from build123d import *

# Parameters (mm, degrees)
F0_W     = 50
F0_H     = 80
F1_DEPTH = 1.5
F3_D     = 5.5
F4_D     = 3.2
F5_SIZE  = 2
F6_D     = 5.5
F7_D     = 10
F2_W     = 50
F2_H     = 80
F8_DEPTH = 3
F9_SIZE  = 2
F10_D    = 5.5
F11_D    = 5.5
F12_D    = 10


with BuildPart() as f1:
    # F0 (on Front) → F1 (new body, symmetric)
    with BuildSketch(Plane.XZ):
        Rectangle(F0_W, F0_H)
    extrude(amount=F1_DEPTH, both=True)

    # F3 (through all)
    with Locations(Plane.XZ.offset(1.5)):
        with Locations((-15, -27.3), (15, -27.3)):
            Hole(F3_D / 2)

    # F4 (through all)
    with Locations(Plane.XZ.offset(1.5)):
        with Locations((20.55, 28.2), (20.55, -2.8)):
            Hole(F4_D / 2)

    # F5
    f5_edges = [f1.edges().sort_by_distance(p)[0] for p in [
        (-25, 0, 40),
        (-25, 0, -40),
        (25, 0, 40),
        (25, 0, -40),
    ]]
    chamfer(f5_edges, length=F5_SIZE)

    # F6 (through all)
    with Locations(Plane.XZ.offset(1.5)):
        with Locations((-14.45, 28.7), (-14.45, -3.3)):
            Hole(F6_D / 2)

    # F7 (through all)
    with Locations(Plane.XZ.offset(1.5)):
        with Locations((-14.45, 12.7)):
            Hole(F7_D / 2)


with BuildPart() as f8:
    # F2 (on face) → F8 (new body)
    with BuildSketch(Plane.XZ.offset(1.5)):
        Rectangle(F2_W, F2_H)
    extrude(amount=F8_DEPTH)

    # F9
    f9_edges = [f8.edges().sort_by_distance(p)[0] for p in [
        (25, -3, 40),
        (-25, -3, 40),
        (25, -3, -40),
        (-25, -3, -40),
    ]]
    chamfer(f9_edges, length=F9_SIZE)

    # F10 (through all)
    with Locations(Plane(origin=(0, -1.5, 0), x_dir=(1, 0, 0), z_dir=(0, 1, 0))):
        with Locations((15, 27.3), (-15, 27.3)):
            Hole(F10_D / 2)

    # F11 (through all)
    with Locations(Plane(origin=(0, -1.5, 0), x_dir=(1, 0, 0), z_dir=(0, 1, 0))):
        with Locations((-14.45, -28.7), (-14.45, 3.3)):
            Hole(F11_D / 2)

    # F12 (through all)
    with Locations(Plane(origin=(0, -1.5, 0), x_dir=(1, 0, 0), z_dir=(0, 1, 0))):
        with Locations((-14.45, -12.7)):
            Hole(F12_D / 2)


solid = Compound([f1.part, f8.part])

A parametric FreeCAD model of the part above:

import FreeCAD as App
import Part
import Sketcher
Q = App.Units.Quantity


def edges_at(feature, points):
    """Names of the edges that pass closest to the given points."""
    edges = feature.Shape.Edges
    near = lambda p: min(range(len(edges)), key=lambda i: edges[i].distToShape(Part.Vertex(*p))[0])
    return sorted({f"Edge{near(p) + 1}" for p in points})

doc = App.newDocument("Part")
body = doc.addObject("PartDesign::Body", "Body")

# Sketch on XZ plane
sketch1 = body.newObject("Sketcher::SketchObject", "Sketch")
sketch1.AttachmentSupport = (doc.getObject("XZ_Plane"), [""])
sketch1.MapMode = "FlatFace"
sketch1.addGeometry(Part.LineSegment(App.Vector(-25, 40, 0), App.Vector(-25, -40, 0)), False)
sketch1.addGeometry(Part.LineSegment(App.Vector(-25, -40, 0), App.Vector(25, -40, 0)), False)
sketch1.addGeometry(Part.LineSegment(App.Vector(25, -40, 0), App.Vector(25, 40, 0)), False)
sketch1.addGeometry(Part.LineSegment(App.Vector(25, 40, 0), App.Vector(-25, 40, 0)), False)
sketch1.addConstraint(Sketcher.Constraint("Coincident", 0, 2, 1, 1))
sketch1.addConstraint(Sketcher.Constraint("Coincident", 1, 2, 2, 1))
sketch1.addConstraint(Sketcher.Constraint("Coincident", 2, 2, 3, 1))
sketch1.addConstraint(Sketcher.Constraint("Coincident", 3, 2, 0, 1))
sketch1.addConstraint(Sketcher.Constraint("Vertical", 0))
sketch1.addConstraint(Sketcher.Constraint("Horizontal", 1))
sketch1.addConstraint(Sketcher.Constraint("Vertical", 2))
sketch1.addConstraint(Sketcher.Constraint("Horizontal", 3))
sketch1.addConstraint(Sketcher.Constraint("Symmetric", 0, 2, 2, 2, -1, 1))
sketch1.addConstraint(Sketcher.Constraint("DistanceX", 1, 1, 1, 2, Q("50 mm")))
sketch1.addConstraint(Sketcher.Constraint("DistanceY", 0, 2, 0, 1, Q("80 mm")))
pad1 = body.newObject("PartDesign::Pad", "Pad")
pad1.Profile = sketch1
pad1.Length = 3
pad1.Midplane = True

# Sketch on XZ plane
sketch2 = body.newObject("Sketcher::SketchObject", "Sketch001")
sketch2.AttachmentSupport = (doc.getObject("XZ_Plane"), [""])
sketch2.MapMode = "FlatFace"
sketch2.AttachmentOffset = App.Placement(App.Vector(0, 0, 1.5), App.Rotation())
sketch2.addGeometry(Part.Circle(App.Vector(-15, -27.3, 0), App.Vector(0, 0, 1), 2.8), False)
sketch2.addGeometry(Part.Circle(App.Vector(15, -27.3, 0), App.Vector(0, 0, 1), 2.8), False)
sketch2.addConstraint(Sketcher.Constraint("Equal", 0, 1))
sketch2.addConstraint(Sketcher.Constraint("Symmetric", 0, 3, 1, 3, -2))
sketch2.addConstraint(Sketcher.Constraint("Diameter", 0, Q("5.5 mm")))
sketch2.addConstraint(Sketcher.Constraint("DistanceX", 0, 3, -1, 1, Q("15 mm")))
sketch2.addConstraint(Sketcher.Constraint("DistanceY", 0, 3, -1, 1, Q("27.3 mm")))
doc.recompute()
hole = body.newObject("PartDesign::Hole", "Hole")
hole.Profile = sketch2
hole.ThreadType = "None"
hole.Diameter = 5.5
hole.DepthType = "ThroughAll"

# Sketch on XZ plane
sketch3 = body.newObject("Sketcher::SketchObject", "Sketch002")
sketch3.AttachmentSupport = (doc.getObject("XZ_Plane"), [""])
sketch3.MapMode = "FlatFace"
sketch3.AttachmentOffset = App.Placement(App.Vector(0, 0, 1.5), App.Rotation())
sketch3.addGeometry(Part.Circle(App.Vector(20.6, 28.2, 0), App.Vector(0, 0, 1), 1.6), False)
sketch3.addGeometry(Part.Circle(App.Vector(20.6, -2.8, 0), App.Vector(0, 0, 1), 1.6), False)
sketch3.addConstraint(Sketcher.Constraint("Equal", 0, 1))
sketch3.addConstraint(Sketcher.Constraint("Vertical", 0, 3, 1, 3))
sketch3.addConstraint(Sketcher.Constraint("Diameter", 0, Q("3.2 mm")))
sketch3.addConstraint(Sketcher.Constraint("DistanceY", 1, 3, 0, 3, Q("31 mm")))
sketch3.addConstraint(Sketcher.Constraint("DistanceY", -1, 1, 0, 3, Q("28.2 mm")))
sketch3.addConstraint(Sketcher.Constraint("DistanceX", -1, 1, 0, 3, Q("20.55 mm")))
doc.recompute()
hole2 = body.newObject("PartDesign::Hole", "Hole001")
hole2.Profile = sketch3
hole2.ThreadType = "None"
hole2.Diameter = 3.2
hole2.DepthType = "ThroughAll"
doc.recompute()

chamfer = body.newObject("PartDesign::Chamfer", "Chamfer")
chamfer.Base = (hole2, edges_at(hole2, [
    (-25, 0, 40),
    (-25, 0, -40),
    (25, 0, 40),
    (25, 0, -40),
]))
chamfer.Size = 2

# Sketch on XZ plane
sketch4 = body.newObject("Sketcher::SketchObject", "Sketch003")
sketch4.AttachmentSupport = (doc.getObject("XZ_Plane"), [""])
sketch4.MapMode = "FlatFace"
sketch4.AttachmentOffset = App.Placement(App.Vector(0, 0, 1.5), App.Rotation())
sketch4.addGeometry(Part.Circle(App.Vector(-14.4, 28.7, 0), App.Vector(0, 0, 1), 2.8), False)
sketch4.addGeometry(Part.Circle(App.Vector(-14.4, -3.3, 0), App.Vector(0, 0, 1), 2.8), False)
sketch4.addConstraint(Sketcher.Constraint("Equal", 0, 1))
sketch4.addConstraint(Sketcher.Constraint("Vertical", 0, 3, 1, 3))
sketch4.addConstraint(Sketcher.Constraint("Diameter", 0, Q("5.5 mm")))
sketch4.addConstraint(Sketcher.Constraint("DistanceY", 1, 3, 0, 3, Q("32 mm")))
sketch4.addConstraint(Sketcher.Constraint("DistanceY", -1, 1, 0, 3, Q("28.7 mm")))
sketch4.addConstraint(Sketcher.Constraint("DistanceX", 0, 3, -1, 1, Q("14.45 mm")))
doc.recompute()
hole3 = body.newObject("PartDesign::Hole", "Hole002")
hole3.Profile = sketch4
hole3.ThreadType = "None"
hole3.Diameter = 5.5
hole3.DepthType = "ThroughAll"

# Sketch on XZ plane
sketch5 = body.newObject("Sketcher::SketchObject", "Sketch004")
sketch5.AttachmentSupport = (doc.getObject("XZ_Plane"), [""])
sketch5.MapMode = "FlatFace"
sketch5.AttachmentOffset = App.Placement(App.Vector(0, 0, 1.5), App.Rotation())
sketch5.addGeometry(Part.Circle(App.Vector(-14, 13, 0), App.Vector(0, 0, 1), 5), False)
sketch5.addConstraint(Sketcher.Constraint("Diameter", 0, Q("10 mm")))
sketch5.addConstraint(Sketcher.Constraint("DistanceY", -1, 1, 0, 3, Q("12.7 mm")))
sketch5.addConstraint(Sketcher.Constraint("DistanceX", 0, 3, -1, 1, Q("14.45 mm")))
doc.recompute()
hole4 = body.newObject("PartDesign::Hole", "Hole003")
hole4.Profile = sketch5
hole4.ThreadType = "None"
hole4.Diameter = 10
hole4.DepthType = "ThroughAll"
body2 = doc.addObject("PartDesign::Body", "Body001")

# Sketch on XZ plane
sketch6 = body2.newObject("Sketcher::SketchObject", "Sketch005")
sketch6.AttachmentSupport = (doc.getObject("XZ_Plane001"), [""])
sketch6.MapMode = "FlatFace"
sketch6.AttachmentOffset = App.Placement(App.Vector(0, 0, 1.5), App.Rotation())
sketch6.addGeometry(Part.LineSegment(App.Vector(-25, 40, 0), App.Vector(-25, -40, 0)), False)
sketch6.addGeometry(Part.LineSegment(App.Vector(-25, -40, 0), App.Vector(25, -40, 0)), False)
sketch6.addGeometry(Part.LineSegment(App.Vector(25, -40, 0), App.Vector(25, 40, 0)), False)
sketch6.addGeometry(Part.LineSegment(App.Vector(25, 40, 0), App.Vector(-25, 40, 0)), False)
sketch6.addConstraint(Sketcher.Constraint("Coincident", 0, 2, 1, 1))
sketch6.addConstraint(Sketcher.Constraint("Coincident", 1, 2, 2, 1))
sketch6.addConstraint(Sketcher.Constraint("Coincident", 2, 2, 3, 1))
sketch6.addConstraint(Sketcher.Constraint("Coincident", 3, 2, 0, 1))
sketch6.addConstraint(Sketcher.Constraint("Vertical", 0))
sketch6.addConstraint(Sketcher.Constraint("Horizontal", 1))
sketch6.addConstraint(Sketcher.Constraint("Vertical", 2))
sketch6.addConstraint(Sketcher.Constraint("Horizontal", 3))
sketch6.addConstraint(Sketcher.Constraint("Symmetric", 0, 2, 2, 2, -1, 1))
sketch6.addConstraint(Sketcher.Constraint("DistanceX", 1, 1, 1, 2, Q("50 mm")))
sketch6.addConstraint(Sketcher.Constraint("DistanceY", 0, 2, 0, 1, Q("80 mm")))
pad2 = body2.newObject("PartDesign::Pad", "Pad001")
pad2.Profile = sketch6
pad2.Length = 3
doc.recompute()

chamfer2 = body2.newObject("PartDesign::Chamfer", "Chamfer001")
chamfer2.Base = (pad2, edges_at(pad2, [
    (25, -3, 40),
    (-25, -3, 40),
    (25, -3, -40),
    (-25, -3, -40),
]))
chamfer2.Size = 2

# Sketch on XZ plane
sketch7 = body2.newObject("Sketcher::SketchObject", "Sketch006")
sketch7.AttachmentSupport = (doc.getObject("XZ_Plane001"), [""])
sketch7.MapMode = "FlatFace"
sketch7.AttachmentOffset = App.Placement(App.Vector(0, 0, 1.5), App.Rotation())
sketch7.addGeometry(Part.Circle(App.Vector(15, -27.3, 0), App.Vector(0, 0, 1), 2.8), False)
sketch7.addGeometry(Part.Circle(App.Vector(-15, -27.3, 0), App.Vector(0, 0, 1), 2.8), False)
sketch7.addConstraint(Sketcher.Constraint("Equal", 0, 1))
sketch7.addConstraint(Sketcher.Constraint("Symmetric", 0, 3, 1, 3, -2))
sketch7.addConstraint(Sketcher.Constraint("Diameter", 0, Q("5.5 mm")))
sketch7.addConstraint(Sketcher.Constraint("DistanceX", -1, 1, 0, 3, Q("15 mm")))
sketch7.addConstraint(Sketcher.Constraint("DistanceY", 0, 3, -1, 1, Q("27.3 mm")))
doc.recompute()
hole5 = body2.newObject("PartDesign::Hole", "Hole004")
hole5.Profile = sketch7
hole5.ThreadType = "None"
hole5.Diameter = 5.5
hole5.DepthType = "ThroughAll"
hole5.Reversed = True

# Sketch on XZ plane
sketch8 = body2.newObject("Sketcher::SketchObject", "Sketch007")
sketch8.AttachmentSupport = (doc.getObject("XZ_Plane001"), [""])
sketch8.MapMode = "FlatFace"
sketch8.AttachmentOffset = App.Placement(App.Vector(0, 0, 1.5), App.Rotation())
sketch8.addGeometry(Part.Circle(App.Vector(-14.4, 28.7, 0), App.Vector(0, 0, 1), 2.8), False)
sketch8.addGeometry(Part.Circle(App.Vector(-14.4, -3.3, 0), App.Vector(0, 0, 1), 2.8), False)
sketch8.addConstraint(Sketcher.Constraint("Equal", 0, 1))
sketch8.addConstraint(Sketcher.Constraint("Vertical", 0, 3, 1, 3))
sketch8.addConstraint(Sketcher.Constraint("Diameter", 0, Q("5.5 mm")))
sketch8.addConstraint(Sketcher.Constraint("DistanceY", 1, 3, 0, 3, Q("32 mm")))
sketch8.addConstraint(Sketcher.Constraint("DistanceY", -1, 1, 0, 3, Q("28.7 mm")))
sketch8.addConstraint(Sketcher.Constraint("DistanceX", 0, 3, -1, 1, Q("14.45 mm")))
doc.recompute()
hole6 = body2.newObject("PartDesign::Hole", "Hole005")
hole6.Profile = sketch8
hole6.ThreadType = "None"
hole6.Diameter = 5.5
hole6.DepthType = "ThroughAll"
hole6.Reversed = True

# Sketch on XZ plane
sketch9 = body2.newObject("Sketcher::SketchObject", "Sketch008")
sketch9.AttachmentSupport = (doc.getObject("XZ_Plane001"), [""])
sketch9.MapMode = "FlatFace"
sketch9.AttachmentOffset = App.Placement(App.Vector(0, 0, 1.5), App.Rotation())
sketch9.addGeometry(Part.Circle(App.Vector(-14, 13, 0), App.Vector(0, 0, 1), 5), False)
sketch9.addConstraint(Sketcher.Constraint("Diameter", 0, Q("10 mm")))
sketch9.addConstraint(Sketcher.Constraint("DistanceY", -1, 1, 0, 3, Q("12.7 mm")))
sketch9.addConstraint(Sketcher.Constraint("DistanceX", 0, 3, -1, 1, Q("14.45 mm")))
doc.recompute()
hole7 = body2.newObject("PartDesign::Hole", "Hole006")
hole7.Profile = sketch9
hole7.ThreadType = "None"
hole7.Diameter = 10
hole7.DepthType = "ThroughAll"
hole7.Reversed = True

doc.recompute()
